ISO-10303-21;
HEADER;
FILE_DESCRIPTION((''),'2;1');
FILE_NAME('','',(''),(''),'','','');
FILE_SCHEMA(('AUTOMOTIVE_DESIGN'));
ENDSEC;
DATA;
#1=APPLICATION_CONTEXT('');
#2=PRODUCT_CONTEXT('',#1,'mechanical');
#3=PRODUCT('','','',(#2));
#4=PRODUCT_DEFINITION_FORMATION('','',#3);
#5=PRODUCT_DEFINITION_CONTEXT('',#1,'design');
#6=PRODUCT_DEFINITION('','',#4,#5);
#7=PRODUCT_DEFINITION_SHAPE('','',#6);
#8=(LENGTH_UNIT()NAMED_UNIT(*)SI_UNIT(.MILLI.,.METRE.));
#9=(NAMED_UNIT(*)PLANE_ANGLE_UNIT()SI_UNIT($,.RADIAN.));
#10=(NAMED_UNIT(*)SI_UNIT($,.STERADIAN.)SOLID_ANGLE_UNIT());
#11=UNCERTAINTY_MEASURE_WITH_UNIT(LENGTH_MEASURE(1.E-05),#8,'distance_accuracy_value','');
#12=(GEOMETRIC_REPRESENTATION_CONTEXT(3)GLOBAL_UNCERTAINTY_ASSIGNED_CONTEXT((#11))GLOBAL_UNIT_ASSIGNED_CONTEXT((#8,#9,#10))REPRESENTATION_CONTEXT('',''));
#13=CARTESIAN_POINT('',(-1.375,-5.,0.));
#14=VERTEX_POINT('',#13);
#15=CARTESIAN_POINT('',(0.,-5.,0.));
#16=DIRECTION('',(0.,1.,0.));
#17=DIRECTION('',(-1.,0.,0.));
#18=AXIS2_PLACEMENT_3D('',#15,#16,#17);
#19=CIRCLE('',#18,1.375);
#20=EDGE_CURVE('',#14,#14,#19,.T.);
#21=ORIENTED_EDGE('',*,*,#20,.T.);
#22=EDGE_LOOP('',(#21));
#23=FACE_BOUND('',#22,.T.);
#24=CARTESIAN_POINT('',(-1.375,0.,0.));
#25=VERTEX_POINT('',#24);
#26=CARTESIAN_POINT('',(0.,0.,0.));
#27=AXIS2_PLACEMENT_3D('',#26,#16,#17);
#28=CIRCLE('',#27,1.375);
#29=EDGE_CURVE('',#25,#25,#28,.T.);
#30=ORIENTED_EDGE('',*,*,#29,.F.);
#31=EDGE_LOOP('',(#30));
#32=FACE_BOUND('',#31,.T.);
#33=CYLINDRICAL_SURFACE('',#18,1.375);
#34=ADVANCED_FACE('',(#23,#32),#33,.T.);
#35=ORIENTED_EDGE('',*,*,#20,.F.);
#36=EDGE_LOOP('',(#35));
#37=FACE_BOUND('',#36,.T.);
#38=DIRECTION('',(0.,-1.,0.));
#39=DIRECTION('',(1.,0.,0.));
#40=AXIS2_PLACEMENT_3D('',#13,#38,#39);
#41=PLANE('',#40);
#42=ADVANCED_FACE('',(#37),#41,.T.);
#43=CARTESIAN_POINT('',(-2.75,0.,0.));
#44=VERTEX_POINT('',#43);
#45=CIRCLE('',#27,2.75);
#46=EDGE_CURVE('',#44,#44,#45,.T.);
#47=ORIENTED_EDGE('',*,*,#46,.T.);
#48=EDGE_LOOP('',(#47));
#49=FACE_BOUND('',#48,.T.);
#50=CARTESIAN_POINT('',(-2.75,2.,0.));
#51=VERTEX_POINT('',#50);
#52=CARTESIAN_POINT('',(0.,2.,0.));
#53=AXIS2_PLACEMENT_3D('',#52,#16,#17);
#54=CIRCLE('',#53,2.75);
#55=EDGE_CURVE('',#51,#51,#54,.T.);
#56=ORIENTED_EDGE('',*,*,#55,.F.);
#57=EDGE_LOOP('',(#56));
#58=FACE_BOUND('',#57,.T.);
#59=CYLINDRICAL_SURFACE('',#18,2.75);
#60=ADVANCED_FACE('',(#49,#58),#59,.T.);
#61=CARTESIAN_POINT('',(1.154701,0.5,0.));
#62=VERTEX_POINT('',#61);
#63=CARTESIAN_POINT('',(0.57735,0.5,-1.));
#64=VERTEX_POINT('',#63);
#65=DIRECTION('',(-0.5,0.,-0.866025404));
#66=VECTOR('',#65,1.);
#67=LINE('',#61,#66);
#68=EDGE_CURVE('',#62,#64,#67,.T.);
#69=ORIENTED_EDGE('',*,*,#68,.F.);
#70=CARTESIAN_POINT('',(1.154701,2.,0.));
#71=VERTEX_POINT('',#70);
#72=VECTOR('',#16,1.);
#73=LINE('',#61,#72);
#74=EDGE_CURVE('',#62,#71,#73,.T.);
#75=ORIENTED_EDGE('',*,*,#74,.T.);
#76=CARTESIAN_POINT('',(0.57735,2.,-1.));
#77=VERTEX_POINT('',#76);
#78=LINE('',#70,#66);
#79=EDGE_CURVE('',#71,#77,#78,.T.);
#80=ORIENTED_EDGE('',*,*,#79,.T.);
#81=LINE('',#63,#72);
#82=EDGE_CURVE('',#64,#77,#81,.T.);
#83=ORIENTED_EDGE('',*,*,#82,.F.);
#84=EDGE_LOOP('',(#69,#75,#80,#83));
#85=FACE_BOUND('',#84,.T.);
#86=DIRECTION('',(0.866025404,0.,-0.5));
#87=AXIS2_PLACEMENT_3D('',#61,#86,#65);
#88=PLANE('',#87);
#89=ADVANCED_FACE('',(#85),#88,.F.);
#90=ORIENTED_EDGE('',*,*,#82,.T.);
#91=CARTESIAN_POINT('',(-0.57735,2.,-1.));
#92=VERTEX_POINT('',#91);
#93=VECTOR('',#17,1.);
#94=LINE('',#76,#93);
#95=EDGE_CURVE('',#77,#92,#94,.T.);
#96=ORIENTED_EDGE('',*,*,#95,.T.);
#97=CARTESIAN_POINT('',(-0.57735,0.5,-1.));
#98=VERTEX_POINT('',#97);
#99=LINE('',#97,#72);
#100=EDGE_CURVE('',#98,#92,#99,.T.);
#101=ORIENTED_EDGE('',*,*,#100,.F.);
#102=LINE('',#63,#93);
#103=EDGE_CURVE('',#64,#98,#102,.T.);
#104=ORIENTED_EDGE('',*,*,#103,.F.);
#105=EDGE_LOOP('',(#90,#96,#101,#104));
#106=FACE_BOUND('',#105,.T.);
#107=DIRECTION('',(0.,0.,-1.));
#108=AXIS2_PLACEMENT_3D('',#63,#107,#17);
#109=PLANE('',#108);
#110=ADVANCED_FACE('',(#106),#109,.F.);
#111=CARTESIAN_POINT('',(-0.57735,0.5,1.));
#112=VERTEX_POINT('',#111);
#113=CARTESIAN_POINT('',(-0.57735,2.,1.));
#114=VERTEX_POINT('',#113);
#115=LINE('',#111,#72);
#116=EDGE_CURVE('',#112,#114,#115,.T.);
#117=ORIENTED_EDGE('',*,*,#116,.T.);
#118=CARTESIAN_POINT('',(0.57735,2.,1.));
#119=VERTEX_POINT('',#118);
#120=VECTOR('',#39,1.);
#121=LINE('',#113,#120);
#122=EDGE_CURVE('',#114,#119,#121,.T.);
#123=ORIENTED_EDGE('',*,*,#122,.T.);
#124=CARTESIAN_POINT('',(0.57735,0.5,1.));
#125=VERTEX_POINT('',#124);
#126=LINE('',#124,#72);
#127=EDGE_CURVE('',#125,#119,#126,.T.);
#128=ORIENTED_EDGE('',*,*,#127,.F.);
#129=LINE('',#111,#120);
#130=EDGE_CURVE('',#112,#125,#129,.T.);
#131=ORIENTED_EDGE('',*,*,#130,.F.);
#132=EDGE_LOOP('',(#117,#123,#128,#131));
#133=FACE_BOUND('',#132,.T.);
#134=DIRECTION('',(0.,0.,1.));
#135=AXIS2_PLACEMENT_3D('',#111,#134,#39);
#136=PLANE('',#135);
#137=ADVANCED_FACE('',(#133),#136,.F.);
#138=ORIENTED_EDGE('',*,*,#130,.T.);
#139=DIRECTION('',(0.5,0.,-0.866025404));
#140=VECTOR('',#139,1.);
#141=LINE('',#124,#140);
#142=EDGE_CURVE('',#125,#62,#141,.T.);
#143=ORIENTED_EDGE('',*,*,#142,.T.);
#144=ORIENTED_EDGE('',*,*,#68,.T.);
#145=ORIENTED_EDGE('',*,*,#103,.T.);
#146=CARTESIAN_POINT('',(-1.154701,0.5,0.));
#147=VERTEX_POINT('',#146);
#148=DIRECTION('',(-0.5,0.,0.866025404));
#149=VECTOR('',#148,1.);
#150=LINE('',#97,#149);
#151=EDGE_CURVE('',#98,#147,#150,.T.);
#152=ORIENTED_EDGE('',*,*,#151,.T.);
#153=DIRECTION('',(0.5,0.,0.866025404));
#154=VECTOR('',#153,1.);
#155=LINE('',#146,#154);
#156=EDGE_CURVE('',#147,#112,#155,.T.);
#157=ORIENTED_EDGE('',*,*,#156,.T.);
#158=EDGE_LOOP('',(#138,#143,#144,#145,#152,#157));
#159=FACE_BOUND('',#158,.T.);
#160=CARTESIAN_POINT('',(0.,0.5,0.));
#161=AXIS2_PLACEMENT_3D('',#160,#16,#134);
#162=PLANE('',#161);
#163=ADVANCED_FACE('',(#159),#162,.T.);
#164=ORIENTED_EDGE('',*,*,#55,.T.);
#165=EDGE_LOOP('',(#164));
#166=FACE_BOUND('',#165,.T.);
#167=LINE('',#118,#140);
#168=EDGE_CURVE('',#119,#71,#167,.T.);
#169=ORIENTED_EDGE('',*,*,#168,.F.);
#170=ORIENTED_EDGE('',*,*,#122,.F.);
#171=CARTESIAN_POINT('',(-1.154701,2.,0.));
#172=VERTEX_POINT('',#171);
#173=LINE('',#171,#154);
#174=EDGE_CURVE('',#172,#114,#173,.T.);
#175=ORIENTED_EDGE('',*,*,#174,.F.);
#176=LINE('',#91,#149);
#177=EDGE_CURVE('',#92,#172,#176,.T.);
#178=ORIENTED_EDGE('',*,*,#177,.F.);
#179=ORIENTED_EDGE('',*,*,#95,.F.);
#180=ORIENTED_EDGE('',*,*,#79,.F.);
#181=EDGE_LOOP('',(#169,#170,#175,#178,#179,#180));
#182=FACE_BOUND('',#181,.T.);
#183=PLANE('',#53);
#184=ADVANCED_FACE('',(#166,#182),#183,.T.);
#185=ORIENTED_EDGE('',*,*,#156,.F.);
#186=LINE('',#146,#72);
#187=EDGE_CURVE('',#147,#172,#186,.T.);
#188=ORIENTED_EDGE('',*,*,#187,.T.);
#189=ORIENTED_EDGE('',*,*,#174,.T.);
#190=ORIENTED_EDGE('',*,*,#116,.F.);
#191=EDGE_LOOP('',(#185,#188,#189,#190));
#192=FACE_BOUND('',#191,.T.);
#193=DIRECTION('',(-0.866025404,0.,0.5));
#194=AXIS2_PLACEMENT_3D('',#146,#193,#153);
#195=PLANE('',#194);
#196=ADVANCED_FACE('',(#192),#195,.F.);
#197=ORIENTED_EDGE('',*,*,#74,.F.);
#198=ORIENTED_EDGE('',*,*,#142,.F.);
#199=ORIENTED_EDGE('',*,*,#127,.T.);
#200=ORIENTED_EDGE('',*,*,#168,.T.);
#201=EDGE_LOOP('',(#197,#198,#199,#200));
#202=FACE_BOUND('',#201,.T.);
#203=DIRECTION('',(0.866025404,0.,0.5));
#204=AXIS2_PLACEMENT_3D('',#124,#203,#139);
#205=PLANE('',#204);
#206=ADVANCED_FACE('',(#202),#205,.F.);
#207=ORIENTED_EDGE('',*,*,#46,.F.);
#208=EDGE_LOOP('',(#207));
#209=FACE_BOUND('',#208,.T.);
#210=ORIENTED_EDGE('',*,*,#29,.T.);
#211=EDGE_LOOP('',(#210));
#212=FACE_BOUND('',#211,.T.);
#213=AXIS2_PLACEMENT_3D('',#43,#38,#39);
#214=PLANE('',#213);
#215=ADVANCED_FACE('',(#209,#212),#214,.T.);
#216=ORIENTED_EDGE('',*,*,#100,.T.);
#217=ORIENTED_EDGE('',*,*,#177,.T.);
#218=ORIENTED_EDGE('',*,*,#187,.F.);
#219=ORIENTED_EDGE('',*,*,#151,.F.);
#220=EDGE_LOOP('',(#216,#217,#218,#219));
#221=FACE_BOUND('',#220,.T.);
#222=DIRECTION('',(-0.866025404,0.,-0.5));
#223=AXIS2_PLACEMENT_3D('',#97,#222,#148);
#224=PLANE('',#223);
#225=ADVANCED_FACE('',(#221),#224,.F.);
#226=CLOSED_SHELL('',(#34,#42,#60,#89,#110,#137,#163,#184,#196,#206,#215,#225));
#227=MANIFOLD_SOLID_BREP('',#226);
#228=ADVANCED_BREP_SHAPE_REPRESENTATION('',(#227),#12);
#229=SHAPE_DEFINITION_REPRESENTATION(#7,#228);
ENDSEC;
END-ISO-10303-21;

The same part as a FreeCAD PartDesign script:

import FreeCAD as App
import Part
import Sketcher
from FreeCAD import Vector
Q = App.Units.Quantity

doc = App.newDocument("Part")
params = doc.addObject("Spreadsheet::Sheet", "Params")
for row, (alias, value) in enumerate([
    ("sketch1_height", "2 mm"),
    ("sketch1_height2", "5 mm"),
    ("sketch1_width", "2.75 mm"),
    ("revolution_angle", "360 deg"),
    ("pocket1_length", "1.5 mm"),
], start=1):
    params.set(f"A{row}", alias)
    params.set(f"B{row}", "=" + value)
    params.setAlias(f"B{row}", alias)

body = doc.addObject("PartDesign::Body", "Body")

# Sketch on XY plane
sketch1 = body.newObject("Sketcher::SketchObject", "Sketch")
sketch1.AttachmentSupport = (doc.getObject("XY_Plane"), [""])
sketch1.MapMode = "FlatFace"
sketch1.addGeometry(Part.LineSegment(Vector(0, 2, 0), Vector(-2.8, 2, 0)), False)
sketch1.addGeometry(Part.LineSegment(Vector(-2.8, 2, 0), Vector(-2.8, 0, 0)), False)
sketch1.addGeometry(Part.LineSegment(Vector(-2.8, 0, 0), Vector(-1.4, 0, 0)), False)
sketch1.addGeometry(Part.LineSegment(Vector(-1.4, 0, 0), Vector(-1.4, -5, 0)), False)
sketch1.addGeometry(Part.LineSegment(Vector(-1.4, -5, 0), Vector(0, -5, 0)), False)
sketch1.addGeometry(Part.LineSegment(Vector(0, -5, 0), Vector(0, 2, 0)), False)
sketch1.addConstraint(Sketcher.Constraint("Coincident", 0, 2, 1, 1))
sketch1.addConstraint(Sketcher.Constraint("Coincident", 1, 2, 2, 1))
sketch1.addConstraint(Sketcher.Constraint("Coincident", 2, 2, 3, 1))
sketch1.addConstraint(Sketcher.Constraint("Coincident", 3, 2, 4, 1))
sketch1.addConstraint(Sketcher.Constraint("Coincident", 4, 2, 5, 1))
sketch1.addConstraint(Sketcher.Constraint("Coincident", 5, 2, 0, 1))
sketch1.addConstraint(Sketcher.Constraint("Horizontal", 0))
sketch1.addConstraint(Sketcher.Constraint("Vertical", 1))
sketch1.addConstraint(Sketcher.Constraint("Horizontal", 2))
sketch1.addConstraint(Sketcher.Constraint("Vertical", 3))
sketch1.addConstraint(Sketcher.Constraint("Horizontal", 4))
sketch1.addConstraint(Sketcher.Constraint("Vertical", 5))
sketch1.addConstraint(Sketcher.Constraint("PointOnObject", 1, 2, -1))
sketch1.addConstraint(Sketcher.Constraint("PointOnObject", 4, 2, -2))
sketch1.addConstraint(Sketcher.Constraint("Equal", 2, 4))
sketch1.addConstraint(Sketcher.Constraint("DistanceY", 1, 2, 1, 1, 2.0))
sketch1.addConstraint(Sketcher.Constraint("DistanceY", 3, 2, 3, 1, 5.0))
sketch1.addConstraint(Sketcher.Constraint("DistanceX", 0, 2, 0, 1, 2.75))
sketch1.setExpression("Constraints[15]", "Params.sketch1_height")
sketch1.setExpression("Constraints[16]", "Params.sketch1_height2")
sketch1.setExpression("Constraints[17]", "Params.sketch1_width")
revolution = body.newObject("PartDesign::Revolution", "Revolution")
revolution.Profile = sketch1
revolution.ReferenceAxis = (sketch1, ["V_Axis"])
revolution.setExpression("Angle", "Params.revolution_angle")

# Sketch on XZ plane
sketch2 = body.newObject("Sketcher::SketchObject", "Sketch001")
sketch2.AttachmentSupport = (doc.getObject("XZ_Plane"), [""])
sketch2.MapMode = "FlatFace"
sketch2.AttachmentOffset = App.Placement(Vector(0, 0, -2), App.Rotation())
sketch2.addGeometry(Part.LineSegment(Vector(0.6, 1, 0), Vector(1.2, 0, 0)), False)
sketch2.addGeometry(Part.LineSegment(Vector(1.2, 0, 0), Vector(0.6, -1, 0)), False)
sketch2.addGeometry(Part.LineSegment(Vector(0.6, -1, 0), Vector(-0.6, -1, 0)), False)
sketch2.addGeometry(Part.LineSegment(Vector(-0.6, -1, 0), Vector(-1.2, 0, 0)), False)
sketch2.addGeometry(Part.LineSegment(Vector(-1.2, 0, 0), Vector(-0.6, 1, 0)), False)
sketch2.addGeometry(Part.LineSegment(Vector(-0.6, 1, 0), Vector(0.6, 1, 0)), False)
sketch2.addConstraint(Sketcher.Constraint("Coincident", 0, 2, 1, 1))
sketch2.addConstraint(Sketcher.Constraint("Coincident", 1, 2, 2, 1))
sketch2.addConstraint(Sketcher.Constraint("Coincident", 2, 2, 3, 1))
sketch2.addConstraint(Sketcher.Constraint("Coincident", 3, 2, 4, 1))
sketch2.addConstraint(Sketcher.Constraint("Coincident", 4, 2, 5, 1))
sketch2.addConstraint(Sketcher.Constraint("Coincident", 5, 2, 0, 1))
sketch2.addConstraint(Sketcher.Constraint("Horizontal", 2))
sketch2.addConstraint(Sketcher.Constraint("Horizontal", 5))
sketch2.addConstraint(Sketcher.Constraint("Symmetric", 0, 2, 3, 2, -1, 1))
sketch2.addConstraint(Sketcher.Constraint("Symmetric", 1, 2, 4, 2, -1, 1))
sketch2.addConstraint(Sketcher.Constraint("PointOnObject", 0, 2, -1))
sketch2.addConstraint(Sketcher.Constraint("Parallel", 0, 3))
sketch2.addConstraint(Sketcher.Constraint("Vertical", 2, 2, 4, 2))
sketch2.addConstraint(Sketcher.Constraint("Angle", 0, Q("-60 deg")))
sketch2.addConstraint(Sketcher.Constraint("DistanceY", 1, 2, -1, 1, 1.0))
sketch2.addConstraint(Sketcher.Constraint("DistanceX", 2, 2, 2, 1, 1.154701))
pocket1 = body.newObject("PartDesign::Pocket", "Pocket")
pocket1.Profile = sketch2
pocket1.setExpression("Length", "Params.pocket1_length")
pocket1.Reversed = True

doc.recompute()
